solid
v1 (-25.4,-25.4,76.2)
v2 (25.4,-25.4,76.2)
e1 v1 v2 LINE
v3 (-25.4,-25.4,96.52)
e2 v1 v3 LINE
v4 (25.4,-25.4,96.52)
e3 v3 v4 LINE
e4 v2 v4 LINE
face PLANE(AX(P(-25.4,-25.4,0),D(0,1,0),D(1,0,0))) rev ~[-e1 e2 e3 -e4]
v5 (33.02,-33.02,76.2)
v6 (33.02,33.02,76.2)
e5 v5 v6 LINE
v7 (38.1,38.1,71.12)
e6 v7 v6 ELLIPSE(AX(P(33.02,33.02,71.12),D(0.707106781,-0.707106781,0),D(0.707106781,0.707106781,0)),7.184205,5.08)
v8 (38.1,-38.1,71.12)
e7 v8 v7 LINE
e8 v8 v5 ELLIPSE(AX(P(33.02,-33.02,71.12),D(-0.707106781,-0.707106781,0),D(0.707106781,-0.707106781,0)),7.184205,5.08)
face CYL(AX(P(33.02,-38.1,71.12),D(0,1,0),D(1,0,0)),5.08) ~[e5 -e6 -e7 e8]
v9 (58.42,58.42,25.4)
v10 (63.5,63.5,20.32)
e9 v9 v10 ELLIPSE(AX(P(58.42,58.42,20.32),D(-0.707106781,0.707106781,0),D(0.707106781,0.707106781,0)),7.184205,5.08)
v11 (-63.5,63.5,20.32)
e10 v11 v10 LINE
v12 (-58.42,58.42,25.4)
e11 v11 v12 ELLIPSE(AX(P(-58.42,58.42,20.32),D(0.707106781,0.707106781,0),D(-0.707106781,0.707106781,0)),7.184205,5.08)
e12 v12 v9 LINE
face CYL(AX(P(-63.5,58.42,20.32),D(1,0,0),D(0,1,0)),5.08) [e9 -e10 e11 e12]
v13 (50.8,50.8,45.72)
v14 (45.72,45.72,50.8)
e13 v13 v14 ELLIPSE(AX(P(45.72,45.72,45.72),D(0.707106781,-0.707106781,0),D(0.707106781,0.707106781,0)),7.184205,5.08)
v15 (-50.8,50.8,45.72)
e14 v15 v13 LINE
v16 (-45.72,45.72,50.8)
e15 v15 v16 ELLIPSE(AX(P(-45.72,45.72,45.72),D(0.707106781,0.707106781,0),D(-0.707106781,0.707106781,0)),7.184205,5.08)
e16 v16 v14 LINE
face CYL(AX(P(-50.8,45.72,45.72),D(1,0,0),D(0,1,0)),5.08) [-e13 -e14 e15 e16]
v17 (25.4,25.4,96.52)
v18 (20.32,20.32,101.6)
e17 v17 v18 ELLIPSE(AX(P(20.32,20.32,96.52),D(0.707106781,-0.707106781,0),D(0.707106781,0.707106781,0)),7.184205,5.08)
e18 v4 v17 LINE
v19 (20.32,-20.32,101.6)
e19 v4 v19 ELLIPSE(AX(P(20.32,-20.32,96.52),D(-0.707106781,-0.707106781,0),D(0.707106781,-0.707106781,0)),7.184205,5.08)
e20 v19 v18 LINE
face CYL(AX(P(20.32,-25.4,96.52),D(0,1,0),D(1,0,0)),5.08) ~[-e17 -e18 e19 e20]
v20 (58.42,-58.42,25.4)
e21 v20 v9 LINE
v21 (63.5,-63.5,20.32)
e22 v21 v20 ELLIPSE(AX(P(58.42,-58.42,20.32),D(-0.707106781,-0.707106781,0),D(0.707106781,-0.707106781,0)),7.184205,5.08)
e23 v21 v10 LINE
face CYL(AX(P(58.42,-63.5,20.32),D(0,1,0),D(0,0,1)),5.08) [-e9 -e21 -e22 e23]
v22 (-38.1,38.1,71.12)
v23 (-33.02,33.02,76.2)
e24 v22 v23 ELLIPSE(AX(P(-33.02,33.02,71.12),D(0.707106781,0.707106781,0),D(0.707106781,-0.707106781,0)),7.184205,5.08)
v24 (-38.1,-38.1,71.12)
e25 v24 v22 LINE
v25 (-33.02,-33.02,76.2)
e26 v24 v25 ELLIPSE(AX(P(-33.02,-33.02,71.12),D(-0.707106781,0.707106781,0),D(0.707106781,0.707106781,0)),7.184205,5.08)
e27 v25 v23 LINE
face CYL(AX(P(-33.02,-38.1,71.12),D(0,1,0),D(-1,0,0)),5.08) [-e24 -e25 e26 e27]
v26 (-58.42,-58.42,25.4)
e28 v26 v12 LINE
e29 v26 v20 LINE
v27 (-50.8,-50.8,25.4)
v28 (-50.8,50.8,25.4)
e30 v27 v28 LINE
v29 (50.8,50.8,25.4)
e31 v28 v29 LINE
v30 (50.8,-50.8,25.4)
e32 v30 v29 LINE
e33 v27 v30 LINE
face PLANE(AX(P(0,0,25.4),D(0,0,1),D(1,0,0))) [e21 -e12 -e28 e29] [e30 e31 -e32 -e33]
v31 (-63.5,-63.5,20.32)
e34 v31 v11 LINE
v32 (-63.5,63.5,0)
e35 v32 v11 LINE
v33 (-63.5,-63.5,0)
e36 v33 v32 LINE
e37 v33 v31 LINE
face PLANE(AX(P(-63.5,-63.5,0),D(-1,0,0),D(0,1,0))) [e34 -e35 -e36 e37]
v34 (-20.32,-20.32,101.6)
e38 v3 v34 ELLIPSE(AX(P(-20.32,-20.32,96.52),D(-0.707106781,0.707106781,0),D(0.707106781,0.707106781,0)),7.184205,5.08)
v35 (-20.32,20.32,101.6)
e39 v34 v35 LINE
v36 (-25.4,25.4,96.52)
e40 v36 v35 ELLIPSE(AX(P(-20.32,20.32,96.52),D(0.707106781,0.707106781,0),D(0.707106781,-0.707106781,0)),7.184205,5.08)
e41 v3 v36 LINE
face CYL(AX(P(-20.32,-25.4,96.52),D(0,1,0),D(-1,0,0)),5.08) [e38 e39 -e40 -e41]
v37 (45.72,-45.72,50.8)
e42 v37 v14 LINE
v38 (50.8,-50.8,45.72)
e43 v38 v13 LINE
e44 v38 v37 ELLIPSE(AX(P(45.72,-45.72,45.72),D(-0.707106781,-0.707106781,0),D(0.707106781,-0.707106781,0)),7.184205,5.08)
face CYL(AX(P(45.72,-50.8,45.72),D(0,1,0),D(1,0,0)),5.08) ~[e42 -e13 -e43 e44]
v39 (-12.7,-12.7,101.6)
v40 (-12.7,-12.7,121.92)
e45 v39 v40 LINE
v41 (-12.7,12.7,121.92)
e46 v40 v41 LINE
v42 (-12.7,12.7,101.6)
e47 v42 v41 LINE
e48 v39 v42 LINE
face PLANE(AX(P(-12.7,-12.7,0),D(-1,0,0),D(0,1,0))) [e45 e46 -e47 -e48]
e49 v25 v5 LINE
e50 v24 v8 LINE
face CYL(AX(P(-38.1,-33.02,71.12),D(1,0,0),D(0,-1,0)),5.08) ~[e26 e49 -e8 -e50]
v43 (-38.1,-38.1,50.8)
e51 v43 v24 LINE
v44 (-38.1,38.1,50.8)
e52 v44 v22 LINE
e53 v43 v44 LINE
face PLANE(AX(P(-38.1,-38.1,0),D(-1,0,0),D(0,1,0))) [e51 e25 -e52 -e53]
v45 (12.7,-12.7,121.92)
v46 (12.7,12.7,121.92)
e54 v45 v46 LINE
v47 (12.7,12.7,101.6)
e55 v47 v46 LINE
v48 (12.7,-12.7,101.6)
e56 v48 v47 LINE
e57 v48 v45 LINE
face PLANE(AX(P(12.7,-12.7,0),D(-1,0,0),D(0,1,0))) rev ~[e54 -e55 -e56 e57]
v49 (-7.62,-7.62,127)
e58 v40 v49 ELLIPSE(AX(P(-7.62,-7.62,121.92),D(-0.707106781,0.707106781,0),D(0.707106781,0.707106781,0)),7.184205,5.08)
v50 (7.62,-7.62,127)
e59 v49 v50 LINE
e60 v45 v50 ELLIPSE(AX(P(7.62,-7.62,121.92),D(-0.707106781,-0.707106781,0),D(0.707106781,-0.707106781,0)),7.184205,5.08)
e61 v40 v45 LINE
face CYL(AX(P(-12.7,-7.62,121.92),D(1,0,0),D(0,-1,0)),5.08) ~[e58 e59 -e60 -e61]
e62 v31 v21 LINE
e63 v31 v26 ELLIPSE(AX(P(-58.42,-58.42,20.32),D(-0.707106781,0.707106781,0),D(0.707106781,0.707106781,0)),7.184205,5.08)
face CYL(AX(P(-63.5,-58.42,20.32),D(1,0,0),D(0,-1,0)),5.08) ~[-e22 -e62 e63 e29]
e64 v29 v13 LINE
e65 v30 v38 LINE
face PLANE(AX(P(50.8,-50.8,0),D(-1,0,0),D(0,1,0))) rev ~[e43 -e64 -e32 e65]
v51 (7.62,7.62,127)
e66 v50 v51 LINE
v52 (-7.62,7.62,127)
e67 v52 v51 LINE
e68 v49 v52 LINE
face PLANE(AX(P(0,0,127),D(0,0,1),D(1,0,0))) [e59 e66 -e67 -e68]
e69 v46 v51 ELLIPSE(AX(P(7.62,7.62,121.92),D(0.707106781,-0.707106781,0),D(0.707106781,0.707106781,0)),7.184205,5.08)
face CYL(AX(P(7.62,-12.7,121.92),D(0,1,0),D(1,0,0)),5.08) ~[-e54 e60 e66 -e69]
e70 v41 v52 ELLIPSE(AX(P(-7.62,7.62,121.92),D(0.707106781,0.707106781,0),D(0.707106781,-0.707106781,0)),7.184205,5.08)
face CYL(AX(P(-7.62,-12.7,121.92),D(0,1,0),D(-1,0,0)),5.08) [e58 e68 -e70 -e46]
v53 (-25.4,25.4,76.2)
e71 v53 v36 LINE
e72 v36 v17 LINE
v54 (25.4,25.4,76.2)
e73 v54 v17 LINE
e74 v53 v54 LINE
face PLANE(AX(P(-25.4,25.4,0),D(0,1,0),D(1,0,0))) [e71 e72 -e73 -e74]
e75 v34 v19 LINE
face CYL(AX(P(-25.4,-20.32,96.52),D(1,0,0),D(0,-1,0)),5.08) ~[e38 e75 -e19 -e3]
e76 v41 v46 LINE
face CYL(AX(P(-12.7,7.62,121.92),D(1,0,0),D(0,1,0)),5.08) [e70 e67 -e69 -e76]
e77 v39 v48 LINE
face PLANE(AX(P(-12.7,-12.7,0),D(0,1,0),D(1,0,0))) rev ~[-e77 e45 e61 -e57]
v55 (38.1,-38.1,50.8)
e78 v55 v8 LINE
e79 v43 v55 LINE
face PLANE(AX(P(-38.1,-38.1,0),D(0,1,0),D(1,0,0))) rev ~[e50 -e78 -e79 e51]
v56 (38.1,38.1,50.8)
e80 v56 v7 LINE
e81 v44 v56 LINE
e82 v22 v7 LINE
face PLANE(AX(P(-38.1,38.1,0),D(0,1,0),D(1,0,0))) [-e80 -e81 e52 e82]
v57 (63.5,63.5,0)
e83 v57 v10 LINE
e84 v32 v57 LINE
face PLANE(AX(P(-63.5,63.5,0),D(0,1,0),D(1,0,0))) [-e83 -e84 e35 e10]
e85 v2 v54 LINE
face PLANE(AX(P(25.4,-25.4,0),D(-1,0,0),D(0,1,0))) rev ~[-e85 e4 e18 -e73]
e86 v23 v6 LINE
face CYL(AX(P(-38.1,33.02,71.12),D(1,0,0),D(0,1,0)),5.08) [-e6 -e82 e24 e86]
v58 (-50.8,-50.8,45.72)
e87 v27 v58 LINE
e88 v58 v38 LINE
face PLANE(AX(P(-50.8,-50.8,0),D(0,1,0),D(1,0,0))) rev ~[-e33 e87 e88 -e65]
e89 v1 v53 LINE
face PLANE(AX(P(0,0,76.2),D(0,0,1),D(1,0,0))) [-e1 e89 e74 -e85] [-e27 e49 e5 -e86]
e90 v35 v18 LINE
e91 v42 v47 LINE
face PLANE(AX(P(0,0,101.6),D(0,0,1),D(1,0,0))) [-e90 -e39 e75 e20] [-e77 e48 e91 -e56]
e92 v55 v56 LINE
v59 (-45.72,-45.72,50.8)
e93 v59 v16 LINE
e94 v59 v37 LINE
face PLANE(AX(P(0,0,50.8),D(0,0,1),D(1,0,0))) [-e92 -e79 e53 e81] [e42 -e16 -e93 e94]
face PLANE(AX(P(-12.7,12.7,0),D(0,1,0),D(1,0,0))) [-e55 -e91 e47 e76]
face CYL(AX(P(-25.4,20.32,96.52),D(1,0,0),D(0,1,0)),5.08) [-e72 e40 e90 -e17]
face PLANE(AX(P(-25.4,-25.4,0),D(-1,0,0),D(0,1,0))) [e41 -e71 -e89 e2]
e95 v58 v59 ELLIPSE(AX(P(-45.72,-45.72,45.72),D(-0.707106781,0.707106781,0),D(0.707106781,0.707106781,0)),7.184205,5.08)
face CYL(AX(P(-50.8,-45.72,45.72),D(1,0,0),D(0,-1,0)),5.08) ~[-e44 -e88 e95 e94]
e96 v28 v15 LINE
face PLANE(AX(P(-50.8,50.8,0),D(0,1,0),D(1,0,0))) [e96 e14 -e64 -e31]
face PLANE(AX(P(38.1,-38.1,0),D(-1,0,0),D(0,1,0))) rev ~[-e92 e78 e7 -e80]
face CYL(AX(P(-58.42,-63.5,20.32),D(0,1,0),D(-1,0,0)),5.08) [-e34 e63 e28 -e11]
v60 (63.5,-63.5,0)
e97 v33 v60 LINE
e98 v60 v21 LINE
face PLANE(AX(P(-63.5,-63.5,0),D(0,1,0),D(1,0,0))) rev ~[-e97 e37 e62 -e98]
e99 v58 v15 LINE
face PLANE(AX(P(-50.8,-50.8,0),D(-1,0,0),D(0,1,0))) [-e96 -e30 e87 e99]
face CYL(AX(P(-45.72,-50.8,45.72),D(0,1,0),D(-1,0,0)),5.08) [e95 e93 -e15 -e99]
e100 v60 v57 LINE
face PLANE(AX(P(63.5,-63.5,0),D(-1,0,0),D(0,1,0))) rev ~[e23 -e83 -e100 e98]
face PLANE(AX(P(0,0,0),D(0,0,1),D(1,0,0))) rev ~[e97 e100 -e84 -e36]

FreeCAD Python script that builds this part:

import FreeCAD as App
import Part
import Sketcher
from FreeCAD import Vector
Q = App.Units.Quantity


def edges_at(feature, points):
    """Names of the edges that pass closest to the given points."""
    edges = feature.Shape.Edges
    near = lambda p: min(range(len(edges)), key=lambda i: edges[i].distToShape(Part.Vertex(*p))[0])
    return sorted({f"Edge{near(p) + 1}" for p in points})


def add_polygon(sketch, points):
    """Adds a closed chain of lines whose ends are joined by coincident constraints."""
    first, n = sketch.GeometryCount, len(points)
    for a, b in zip(points, points[1:] + points[:1]):
        sketch.addGeometry(Part.LineSegment(App.Vector(*a, 0), App.Vector(*b, 0)), False)
    for i in range(n):
        sketch.addConstraint(Sketcher.Constraint("Coincident", first + i, 2, first + (i + 1) % n, 1))

doc = App.newDocument("Part")
body = doc.addObject("PartDesign::Body", "Body")

sketch1 = doc.addObject("Sketcher::SketchObject", "Sketch")
body.addObject(sketch1)
sketch1.AttachmentSupport = (doc.XY_Plane, [""])
sketch1.MapMode = "FlatFace"
add_polygon(sketch1, [(-13, 13), (-13, -13), (13, -13), (13, 13)])
sketch1.addConstraint(Sketcher.Constraint("Vertical", 0))
sketch1.addConstraint(Sketcher.Constraint("Horizontal", 1))
sketch1.addConstraint(Sketcher.Constraint("Vertical", 2))
sketch1.addConstraint(Sketcher.Constraint("Horizontal", 3))
sketch1.addConstraint(Sketcher.Constraint("Symmetric", 0, 2, 2, 2, -1, 1))
sketch1.addConstraint(Sketcher.Constraint("Equal", 3, 0))
sketch1.addConstraint(Sketcher.Constraint("DistanceX", 1, 1, 1, 2, Q("1 in")))
pad1 = doc.addObject("PartDesign::Pad", "Pad")
body.addObject(pad1)
pad1.Profile = sketch1
pad1.Length = Q("5 in")

sketch2 = doc.addObject("Sketcher::SketchObject", "Sketch001")
body.addObject(sketch2)
sketch2.AttachmentSupport = (doc.XY_Plane, [""])
sketch2.MapMode = "FlatFace"
add_polygon(sketch2, [(-25, 25), (-25, -25), (25, -25), (25, 25)])
sketch2.addConstraint(Sketcher.Constraint("Vertical", 0))
sketch2.addConstraint(Sketcher.Constraint("Horizontal", 1))
sketch2.addConstraint(Sketcher.Constraint("Vertical", 2))
sketch2.addConstraint(Sketcher.Constraint("Horizontal", 3))
sketch2.addConstraint(Sketcher.Constraint("Symmetric", 0, 2, 2, 2, -1, 1))
sketch2.addConstraint(Sketcher.Constraint("Equal", 3, 0))
sketch2.addConstraint(Sketcher.Constraint("DistanceX", 1, 1, 1, 2, Q("2 in")))
pad2 = doc.addObject("PartDesign::Pad", "Pad001")
body.addObject(pad2)
pad2.Profile = sketch2
pad2.Length = Q("4 in")

sketch3 = doc.addObject("Sketcher::SketchObject", "Sketch002")
body.addObject(sketch3)
sketch3.AttachmentSupport = (doc.XY_Plane, [""])
sketch3.MapMode = "FlatFace"
add_polygon(sketch3, [(-38, 38), (-38, -38), (38, -38), (38, 38)])
sketch3.addConstraint(Sketcher.Constraint("Vertical", 0))
sketch3.addConstraint(Sketcher.Constraint("Horizontal", 1))
sketch3.addConstraint(Sketcher.Constraint("Vertical", 2))
sketch3.addConstraint(Sketcher.Constraint("Horizontal", 3))
sketch3.addConstraint(Sketcher.Constraint("Symmetric", 0, 2, 2, 2, -1, 1))
sketch3.addConstraint(Sketcher.Constraint("Equal", 3, 0))
sketch3.addConstraint(Sketcher.Constraint("DistanceX", 1, 1, 1, 2, Q("3 in")))
pad3 = doc.addObject("PartDesign::Pad", "Pad002")
body.addObject(pad3)
pad3.Profile = sketch3
pad3.Length = Q("3 in")

sketch4 = doc.addObject("Sketcher::SketchObject", "Sketch003")
body.addObject(sketch4)
sketch4.AttachmentSupport = (doc.XY_Plane, [""])
sketch4.MapMode = "FlatFace"
add_polygon(sketch4, [(-51, 51), (-51, -51), (51, -51), (51, 51)])
sketch4.addConstraint(Sketcher.Constraint("Vertical", 0))
sketch4.addConstraint(Sketcher.Constraint("Horizontal", 1))
sketch4.addConstraint(Sketcher.Constraint("Vertical", 2))
sketch4.addConstraint(Sketcher.Constraint("Horizontal", 3))
sketch4.addConstraint(Sketcher.Constraint("Symmetric", 0, 2, 2, 2, -1, 1))
sketch4.addConstraint(Sketcher.Constraint("Equal", 3, 0))
sketch4.addConstraint(Sketcher.Constraint("DistanceX", 1, 1, 1, 2, Q("4 in")))
pad4 = doc.addObject("PartDesign::Pad", "Pad003")
body.addObject(pad4)
pad4.Profile = sketch4
pad4.Length = Q("2 in")

sketch5 = doc.addObject("Sketcher::SketchObject", "Sketch004")
body.addObject(sketch5)
sketch5.AttachmentSupport = (doc.XY_Plane, [""])
sketch5.MapMode = "FlatFace"
add_polygon(sketch5, [(-64, 64), (-64, -64), (64, -64), (64, 64)])
sketch5.addConstraint(Sketcher.Constraint("Vertical", 0))
sketch5.addConstraint(Sketcher.Constraint("Horizontal", 1))
sketch5.addConstraint(Sketcher.Constraint("Vertical", 2))
sketch5.addConstraint(Sketcher.Constraint("Horizontal", 3))
sketch5.addConstraint(Sketcher.Constraint("Symmetric", 0, 2, 2, 2, -1, 1))
sketch5.addConstraint(Sketcher.Constraint("Equal", 3, 0))
sketch5.addConstraint(Sketcher.Constraint("DistanceX", 1, 1, 1, 2, Q("5 in")))
pad5 = doc.addObject("PartDesign::Pad", "Pad004")
body.addObject(pad5)
pad5.Profile = sketch5
pad5.Length = Q("1 in")
doc.recompute()

fillet = doc.addObject("PartDesign::Fillet", "Fillet")
body.addObject(fillet)
fillet.Base = (pad5, edges_at(pad5, [
    (0, -12.7, 127),
    (0, -25.4, 101.6),
    (0, -38.1, 76.2),
    (0, -50.8, 50.8),
    (0, -63.5, 25.4),
    (12.7, 0, 127),
    (0, 12.7, 127),
    (-12.7, 0, 127),
    (25.4, 0, 101.6),
    (0, 25.4, 101.6),
    (-25.4, 0, 101.6),
    (38.1, 0, 76.2),
    (0, 38.1, 76.2),
    (-38.1, 0, 76.2),
    (-50.8, 0, 50.8),
    (-63.5, 0, 25.4),
    (50.8, 0, 50.8),
    (63.5, 0, 25.4),
    (0, 50.8, 50.8),
    (0, 63.5, 25.4),
]))
fillet.Radius = Q("0.2 in")

doc.recompute()
